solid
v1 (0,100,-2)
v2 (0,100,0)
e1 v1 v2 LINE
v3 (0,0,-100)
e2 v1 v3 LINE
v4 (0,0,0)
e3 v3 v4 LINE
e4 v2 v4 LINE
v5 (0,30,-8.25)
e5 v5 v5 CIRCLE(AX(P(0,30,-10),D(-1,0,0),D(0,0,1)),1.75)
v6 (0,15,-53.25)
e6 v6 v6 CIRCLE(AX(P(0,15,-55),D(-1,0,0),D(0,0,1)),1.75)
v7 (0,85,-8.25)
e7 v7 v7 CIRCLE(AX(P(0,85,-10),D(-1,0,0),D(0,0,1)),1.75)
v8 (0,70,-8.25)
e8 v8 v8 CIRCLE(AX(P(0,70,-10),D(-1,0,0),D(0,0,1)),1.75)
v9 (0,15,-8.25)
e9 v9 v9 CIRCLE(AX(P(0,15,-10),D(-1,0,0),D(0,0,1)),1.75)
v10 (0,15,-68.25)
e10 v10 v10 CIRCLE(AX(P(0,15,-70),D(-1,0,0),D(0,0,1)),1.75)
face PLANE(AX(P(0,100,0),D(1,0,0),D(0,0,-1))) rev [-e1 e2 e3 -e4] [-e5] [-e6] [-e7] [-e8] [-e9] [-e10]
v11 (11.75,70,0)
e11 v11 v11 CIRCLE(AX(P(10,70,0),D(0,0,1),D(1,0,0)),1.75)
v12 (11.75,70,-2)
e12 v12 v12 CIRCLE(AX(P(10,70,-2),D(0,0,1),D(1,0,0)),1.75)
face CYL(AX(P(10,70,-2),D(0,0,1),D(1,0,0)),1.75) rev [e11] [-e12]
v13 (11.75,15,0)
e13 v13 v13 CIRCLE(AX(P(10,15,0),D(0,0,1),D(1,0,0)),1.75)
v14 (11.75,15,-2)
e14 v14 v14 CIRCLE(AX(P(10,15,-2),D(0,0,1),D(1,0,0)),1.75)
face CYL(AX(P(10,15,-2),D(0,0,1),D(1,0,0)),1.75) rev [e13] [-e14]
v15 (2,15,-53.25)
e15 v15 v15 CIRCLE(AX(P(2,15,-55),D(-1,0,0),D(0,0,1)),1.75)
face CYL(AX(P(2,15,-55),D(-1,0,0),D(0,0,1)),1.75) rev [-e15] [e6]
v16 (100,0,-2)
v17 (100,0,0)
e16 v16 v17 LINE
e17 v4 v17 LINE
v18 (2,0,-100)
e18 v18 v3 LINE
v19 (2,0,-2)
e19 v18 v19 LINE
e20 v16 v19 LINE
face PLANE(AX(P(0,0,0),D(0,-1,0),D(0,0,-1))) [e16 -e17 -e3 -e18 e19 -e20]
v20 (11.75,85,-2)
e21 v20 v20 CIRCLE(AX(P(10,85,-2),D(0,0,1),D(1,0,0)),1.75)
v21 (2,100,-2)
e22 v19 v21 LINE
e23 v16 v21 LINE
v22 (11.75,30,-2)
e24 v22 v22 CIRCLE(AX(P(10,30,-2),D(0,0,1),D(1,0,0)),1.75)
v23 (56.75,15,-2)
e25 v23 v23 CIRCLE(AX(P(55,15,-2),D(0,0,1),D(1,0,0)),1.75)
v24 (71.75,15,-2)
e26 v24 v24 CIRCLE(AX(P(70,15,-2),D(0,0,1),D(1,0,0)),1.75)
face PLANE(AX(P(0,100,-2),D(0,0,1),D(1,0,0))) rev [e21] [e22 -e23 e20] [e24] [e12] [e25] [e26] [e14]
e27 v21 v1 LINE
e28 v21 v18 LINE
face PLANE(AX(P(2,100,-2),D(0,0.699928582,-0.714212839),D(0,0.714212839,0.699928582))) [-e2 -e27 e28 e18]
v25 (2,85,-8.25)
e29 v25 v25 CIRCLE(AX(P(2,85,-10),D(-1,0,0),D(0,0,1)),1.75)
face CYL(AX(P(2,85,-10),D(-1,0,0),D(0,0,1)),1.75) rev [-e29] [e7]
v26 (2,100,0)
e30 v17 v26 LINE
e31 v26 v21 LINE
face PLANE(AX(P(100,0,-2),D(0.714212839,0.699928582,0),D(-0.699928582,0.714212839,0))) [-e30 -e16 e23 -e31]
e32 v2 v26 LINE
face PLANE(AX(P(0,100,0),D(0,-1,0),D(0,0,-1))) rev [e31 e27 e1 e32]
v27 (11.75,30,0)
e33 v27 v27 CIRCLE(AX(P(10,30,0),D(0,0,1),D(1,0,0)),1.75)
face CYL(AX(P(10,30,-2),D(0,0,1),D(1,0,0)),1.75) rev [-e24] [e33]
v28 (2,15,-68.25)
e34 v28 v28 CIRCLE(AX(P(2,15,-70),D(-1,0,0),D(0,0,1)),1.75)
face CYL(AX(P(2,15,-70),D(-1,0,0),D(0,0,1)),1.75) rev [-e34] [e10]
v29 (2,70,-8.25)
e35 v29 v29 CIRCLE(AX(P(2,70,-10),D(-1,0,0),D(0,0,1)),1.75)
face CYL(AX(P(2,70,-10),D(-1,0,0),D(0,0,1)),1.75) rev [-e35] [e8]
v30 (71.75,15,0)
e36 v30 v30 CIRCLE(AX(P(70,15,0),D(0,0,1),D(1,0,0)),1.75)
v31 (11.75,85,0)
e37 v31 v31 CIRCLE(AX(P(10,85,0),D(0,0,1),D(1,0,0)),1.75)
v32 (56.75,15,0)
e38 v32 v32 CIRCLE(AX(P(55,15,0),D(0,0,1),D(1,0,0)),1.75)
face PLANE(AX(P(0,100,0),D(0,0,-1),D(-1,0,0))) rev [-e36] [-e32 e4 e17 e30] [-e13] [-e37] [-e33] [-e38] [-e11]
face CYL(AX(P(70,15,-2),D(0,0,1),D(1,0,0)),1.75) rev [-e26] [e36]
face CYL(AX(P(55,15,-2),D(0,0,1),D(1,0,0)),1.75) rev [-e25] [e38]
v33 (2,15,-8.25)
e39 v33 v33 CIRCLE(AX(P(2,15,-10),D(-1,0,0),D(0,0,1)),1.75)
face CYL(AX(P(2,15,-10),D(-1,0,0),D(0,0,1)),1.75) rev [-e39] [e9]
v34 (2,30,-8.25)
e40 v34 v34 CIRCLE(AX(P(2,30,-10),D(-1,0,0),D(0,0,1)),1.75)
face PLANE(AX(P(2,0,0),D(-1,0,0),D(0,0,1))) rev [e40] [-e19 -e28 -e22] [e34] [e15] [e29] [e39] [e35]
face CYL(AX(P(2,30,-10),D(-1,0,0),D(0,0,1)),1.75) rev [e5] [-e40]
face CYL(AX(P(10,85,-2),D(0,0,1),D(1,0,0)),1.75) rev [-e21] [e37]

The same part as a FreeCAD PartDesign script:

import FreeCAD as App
import Part
import Sketcher

V = App.Vector

doc = App.newDocument("Part")
body = doc.addObject("PartDesign::Body", "Body")

# Sketch on XZ plane
sketch1 = doc.addObject("Sketcher::SketchObject", "Sketch")
body.addObject(sketch1)
sketch1.AttachmentSupport = (doc.XZ_Plane, [""])
sketch1.MapMode = "FlatFace"
sketch1.addGeometry([
    Part.LineSegment(V(0, -2, 0), V(0, 0, 0)),
    Part.LineSegment(V(0, 0, 0), V(2, 0, 0)),
    Part.LineSegment(V(2, 0, 0), V(2, -2, 0)),
    Part.LineSegment(V(2, -2, 0), V(0, -2, 0)),
], False)
sketch1.addConstraint([
    Sketcher.Constraint("Coincident", 0, 2, 1, 1),
    Sketcher.Constraint("Coincident", 1, 2, 2, 1),
    Sketcher.Constraint("Coincident", 2, 2, 3, 1),
    Sketcher.Constraint("Coincident", 3, 2, 0, 1),
    Sketcher.Constraint("Vertical", 0),
    Sketcher.Constraint("Horizontal", 1),
    Sketcher.Constraint("Vertical", 2),
    Sketcher.Constraint("Horizontal", 3),
    Sketcher.Constraint("Coincident", 0, 2, -1, 1),
    Sketcher.Constraint("Equal", 3, 0),
    Sketcher.Constraint("DistanceX", 1, 1, 1, 2, 2.0),
])
pad1 = doc.addObject("PartDesign::Pad", "Pad")
body.addObject(pad1)
pad1.Profile = sketch1
pad1.Length = 100
pad1.Reversed = True

# Sketch on XY plane
sketch2 = doc.addObject("Sketcher::SketchObject", "Sketch001")
body.addObject(sketch2)
sketch2.AttachmentSupport = (doc.XY_Plane, [""])
sketch2.MapMode = "FlatFace"
sketch2.addGeometry([
    Part.LineSegment(V(2, 0, 0), V(100, 0, 0)),
    Part.LineSegment(V(100, 0, 0), V(2, 100, 0)),
    Part.LineSegment(V(2, 100, 0), V(2, 0, 0)),
], False)
sketch2.addConstraint([
    Sketcher.Constraint("Coincident", 0, 2, 1, 1),
    Sketcher.Constraint("Coincident", 1, 2, 2, 1),
    Sketcher.Constraint("Coincident", 2, 2, 0, 1),
    Sketcher.Constraint("Horizontal", 0),
    Sketcher.Constraint("Vertical", 2),
    Sketcher.Constraint("PointOnObject", 0, 2, -1),
    Sketcher.Constraint("DistanceX", 0, 1, 0, 2, 98.0),
    Sketcher.Constraint("DistanceY", 2, 2, 2, 1, 100.0),
    Sketcher.Constraint("DistanceX", -1, 1, 0, 2, 100.0),
])
pad2 = doc.addObject("PartDesign::Pad", "Pad001")
body.addObject(pad2)
pad2.Profile = sketch2
pad2.Length = 2
pad2.Reversed = True

# Sketch on YZ plane
sketch3 = doc.addObject("Sketcher::SketchObject", "Sketch002")
body.addObject(sketch3)
sketch3.AttachmentSupport = (doc.YZ_Plane, [""])
sketch3.MapMode = "FlatFace"
sketch3.addGeometry([
    Part.LineSegment(V(0, -2, 0), V(100, -2, 0)),
    Part.LineSegment(V(100, -2, 0), V(0, -100, 0)),
    Part.LineSegment(V(0, -100, 0), V(0, -2, 0)),
], False)
sketch3.addConstraint([
    Sketcher.Constraint("Coincident", 0, 2, 1, 1),
    Sketcher.Constraint("Coincident", 1, 2, 2, 1),
    Sketcher.Constraint("Coincident", 2, 2, 0, 1),
    Sketcher.Constraint("Horizontal", 0),
    Sketcher.Constraint("Vertical", 2),
    Sketcher.Constraint("PointOnObject", 1, 2, -2),
    Sketcher.Constraint("DistanceX", 0, 1, 0, 2, 100.0),
    Sketcher.Constraint("DistanceY", 2, 1, 2, 2, 98.0),
    Sketcher.Constraint("DistanceY", 0, 2, -1, 1, 2.0),
])
pad3 = doc.addObject("PartDesign::Pad", "Pad002")
body.addObject(pad3)
pad3.Profile = sketch3
pad3.Length = 2

# Sketch on YZ plane
sketch4 = doc.addObject("Sketcher::SketchObject", "Sketch003")
body.addObject(sketch4)
sketch4.AttachmentSupport = (doc.YZ_Plane, [""])
sketch4.MapMode = "FlatFace"
sketch4.addGeometry([
    Part.Circle(V(15, -10, 0), V(0, 0, 1), 1.8),  # 0
    Part.Circle(V(30, -10, 0), V(0, 0, 1), 1.8),  # 1
    Part.Circle(V(85, -10, 0), V(0, 0, 1), 1.8),  # 2
    Part.Circle(V(70, -10, 0), V(0, 0, 1), 1.8),  # 3
    Part.Circle(V(15, -55, 0), V(0, 0, 1), 1.8),  # 4
    Part.Circle(V(15, -70, 0), V(0, 0, 1), 1.8),  # 5
], False)
sketch4.addConstraint([
    Sketcher.Constraint("Equal", 0, 1),
    Sketcher.Constraint("Equal", 1, 2),
    Sketcher.Constraint("Equal", 2, 3),
    Sketcher.Constraint("Equal", 3, 4),
    Sketcher.Constraint("Equal", 4, 5),
    Sketcher.Constraint("Horizontal", 0, 3, 1, 3),
    Sketcher.Constraint("Horizontal", 1, 3, 2, 3),
    Sketcher.Constraint("Horizontal", 2, 3, 3, 3),
    Sketcher.Constraint("Vertical", 0, 3, 4, 3),
    Sketcher.Constraint("Vertical", 4, 3, 5, 3),
    Sketcher.Constraint("Diameter", 0, 3.5),
    Sketcher.Constraint("DistanceX", -1, 1, 0, 3, 15.0),
    Sketcher.Constraint("DistanceY", 0, 3, -1, 1, 10.0),
    Sketcher.Constraint("DistanceX", -1, 1, 1, 3, 30.0),
    Sketcher.Constraint("DistanceX", -1, 1, 2, 3, 85.0),
    Sketcher.Constraint("DistanceX", -1, 1, 3, 3, 70.0),
    Sketcher.Constraint("DistanceY", 4, 3, -1, 1, 55.0),
    Sketcher.Constraint("DistanceY", 5, 3, -1, 1, 70.0),
])
pocket1 = doc.addObject("PartDesign::Pocket", "Pocket")
body.addObject(pocket1)
pocket1.Profile = sketch4
pocket1.Length = 2
pocket1.Reversed = True

# Sketch on XY plane
sketch5 = doc.addObject("Sketcher::SketchObject", "Sketch004")
body.addObject(sketch5)
sketch5.AttachmentSupport = (doc.XY_Plane, [""])
sketch5.MapMode = "FlatFace"
sketch5.addGeometry([
    Part.Circle(V(10, 15, 0), V(0, 0, 1), 1.8),  # 0
    Part.Circle(V(10, 30, 0), V(0, 0, 1), 1.8),  # 1
    Part.Circle(V(10, 85, 0), V(0, 0, 1), 1.8),  # 2
    Part.Circle(V(10, 70, 0), V(0, 0, 1), 1.8),  # 3
    Part.Circle(V(70, 15, 0), V(0, 0, 1), 1.8),  # 4
    Part.Circle(V(55, 15, 0), V(0, 0, 1), 1.8),  # 5
], False)
sketch5.addConstraint([
    Sketcher.Constraint("Equal", 0, 1),
    Sketcher.Constraint("Equal", 1, 2),
    Sketcher.Constraint("Equal", 2, 3),
    Sketcher.Constraint("Equal", 3, 4),
    Sketcher.Constraint("Equal", 4, 5),
    Sketcher.Constraint("Horizontal", 0, 3, 4, 3),
    Sketcher.Constraint("Horizontal", 4, 3, 5, 3),
    Sketcher.Constraint("Vertical", 0, 3, 1, 3),
    Sketcher.Constraint("Vertical", 1, 3, 2, 3),
    Sketcher.Constraint("Vertical", 2, 3, 3, 3),
    Sketcher.Constraint("Diameter", 0, 3.5),
    Sketcher.Constraint("DistanceX", -1, 1, 0, 3, 10.0),
    Sketcher.Constraint("DistanceY", -1, 1, 0, 3, 15.0),
    Sketcher.Constraint("DistanceY", -1, 1, 1, 3, 30.0),
    Sketcher.Constraint("DistanceY", -1, 1, 2, 3, 85.0),
    Sketcher.Constraint("DistanceY", -1, 1, 3, 3, 70.0),
    Sketcher.Constraint("DistanceX", -1, 1, 4, 3, 70.0),
    Sketcher.Constraint("DistanceX", -1, 1, 5, 3, 55.0),
])
pocket2 = doc.addObject("PartDesign::Pocket", "Pocket001")
body.addObject(pocket2)
pocket2.Profile = sketch5
pocket2.Length = 2

doc.recompute()
